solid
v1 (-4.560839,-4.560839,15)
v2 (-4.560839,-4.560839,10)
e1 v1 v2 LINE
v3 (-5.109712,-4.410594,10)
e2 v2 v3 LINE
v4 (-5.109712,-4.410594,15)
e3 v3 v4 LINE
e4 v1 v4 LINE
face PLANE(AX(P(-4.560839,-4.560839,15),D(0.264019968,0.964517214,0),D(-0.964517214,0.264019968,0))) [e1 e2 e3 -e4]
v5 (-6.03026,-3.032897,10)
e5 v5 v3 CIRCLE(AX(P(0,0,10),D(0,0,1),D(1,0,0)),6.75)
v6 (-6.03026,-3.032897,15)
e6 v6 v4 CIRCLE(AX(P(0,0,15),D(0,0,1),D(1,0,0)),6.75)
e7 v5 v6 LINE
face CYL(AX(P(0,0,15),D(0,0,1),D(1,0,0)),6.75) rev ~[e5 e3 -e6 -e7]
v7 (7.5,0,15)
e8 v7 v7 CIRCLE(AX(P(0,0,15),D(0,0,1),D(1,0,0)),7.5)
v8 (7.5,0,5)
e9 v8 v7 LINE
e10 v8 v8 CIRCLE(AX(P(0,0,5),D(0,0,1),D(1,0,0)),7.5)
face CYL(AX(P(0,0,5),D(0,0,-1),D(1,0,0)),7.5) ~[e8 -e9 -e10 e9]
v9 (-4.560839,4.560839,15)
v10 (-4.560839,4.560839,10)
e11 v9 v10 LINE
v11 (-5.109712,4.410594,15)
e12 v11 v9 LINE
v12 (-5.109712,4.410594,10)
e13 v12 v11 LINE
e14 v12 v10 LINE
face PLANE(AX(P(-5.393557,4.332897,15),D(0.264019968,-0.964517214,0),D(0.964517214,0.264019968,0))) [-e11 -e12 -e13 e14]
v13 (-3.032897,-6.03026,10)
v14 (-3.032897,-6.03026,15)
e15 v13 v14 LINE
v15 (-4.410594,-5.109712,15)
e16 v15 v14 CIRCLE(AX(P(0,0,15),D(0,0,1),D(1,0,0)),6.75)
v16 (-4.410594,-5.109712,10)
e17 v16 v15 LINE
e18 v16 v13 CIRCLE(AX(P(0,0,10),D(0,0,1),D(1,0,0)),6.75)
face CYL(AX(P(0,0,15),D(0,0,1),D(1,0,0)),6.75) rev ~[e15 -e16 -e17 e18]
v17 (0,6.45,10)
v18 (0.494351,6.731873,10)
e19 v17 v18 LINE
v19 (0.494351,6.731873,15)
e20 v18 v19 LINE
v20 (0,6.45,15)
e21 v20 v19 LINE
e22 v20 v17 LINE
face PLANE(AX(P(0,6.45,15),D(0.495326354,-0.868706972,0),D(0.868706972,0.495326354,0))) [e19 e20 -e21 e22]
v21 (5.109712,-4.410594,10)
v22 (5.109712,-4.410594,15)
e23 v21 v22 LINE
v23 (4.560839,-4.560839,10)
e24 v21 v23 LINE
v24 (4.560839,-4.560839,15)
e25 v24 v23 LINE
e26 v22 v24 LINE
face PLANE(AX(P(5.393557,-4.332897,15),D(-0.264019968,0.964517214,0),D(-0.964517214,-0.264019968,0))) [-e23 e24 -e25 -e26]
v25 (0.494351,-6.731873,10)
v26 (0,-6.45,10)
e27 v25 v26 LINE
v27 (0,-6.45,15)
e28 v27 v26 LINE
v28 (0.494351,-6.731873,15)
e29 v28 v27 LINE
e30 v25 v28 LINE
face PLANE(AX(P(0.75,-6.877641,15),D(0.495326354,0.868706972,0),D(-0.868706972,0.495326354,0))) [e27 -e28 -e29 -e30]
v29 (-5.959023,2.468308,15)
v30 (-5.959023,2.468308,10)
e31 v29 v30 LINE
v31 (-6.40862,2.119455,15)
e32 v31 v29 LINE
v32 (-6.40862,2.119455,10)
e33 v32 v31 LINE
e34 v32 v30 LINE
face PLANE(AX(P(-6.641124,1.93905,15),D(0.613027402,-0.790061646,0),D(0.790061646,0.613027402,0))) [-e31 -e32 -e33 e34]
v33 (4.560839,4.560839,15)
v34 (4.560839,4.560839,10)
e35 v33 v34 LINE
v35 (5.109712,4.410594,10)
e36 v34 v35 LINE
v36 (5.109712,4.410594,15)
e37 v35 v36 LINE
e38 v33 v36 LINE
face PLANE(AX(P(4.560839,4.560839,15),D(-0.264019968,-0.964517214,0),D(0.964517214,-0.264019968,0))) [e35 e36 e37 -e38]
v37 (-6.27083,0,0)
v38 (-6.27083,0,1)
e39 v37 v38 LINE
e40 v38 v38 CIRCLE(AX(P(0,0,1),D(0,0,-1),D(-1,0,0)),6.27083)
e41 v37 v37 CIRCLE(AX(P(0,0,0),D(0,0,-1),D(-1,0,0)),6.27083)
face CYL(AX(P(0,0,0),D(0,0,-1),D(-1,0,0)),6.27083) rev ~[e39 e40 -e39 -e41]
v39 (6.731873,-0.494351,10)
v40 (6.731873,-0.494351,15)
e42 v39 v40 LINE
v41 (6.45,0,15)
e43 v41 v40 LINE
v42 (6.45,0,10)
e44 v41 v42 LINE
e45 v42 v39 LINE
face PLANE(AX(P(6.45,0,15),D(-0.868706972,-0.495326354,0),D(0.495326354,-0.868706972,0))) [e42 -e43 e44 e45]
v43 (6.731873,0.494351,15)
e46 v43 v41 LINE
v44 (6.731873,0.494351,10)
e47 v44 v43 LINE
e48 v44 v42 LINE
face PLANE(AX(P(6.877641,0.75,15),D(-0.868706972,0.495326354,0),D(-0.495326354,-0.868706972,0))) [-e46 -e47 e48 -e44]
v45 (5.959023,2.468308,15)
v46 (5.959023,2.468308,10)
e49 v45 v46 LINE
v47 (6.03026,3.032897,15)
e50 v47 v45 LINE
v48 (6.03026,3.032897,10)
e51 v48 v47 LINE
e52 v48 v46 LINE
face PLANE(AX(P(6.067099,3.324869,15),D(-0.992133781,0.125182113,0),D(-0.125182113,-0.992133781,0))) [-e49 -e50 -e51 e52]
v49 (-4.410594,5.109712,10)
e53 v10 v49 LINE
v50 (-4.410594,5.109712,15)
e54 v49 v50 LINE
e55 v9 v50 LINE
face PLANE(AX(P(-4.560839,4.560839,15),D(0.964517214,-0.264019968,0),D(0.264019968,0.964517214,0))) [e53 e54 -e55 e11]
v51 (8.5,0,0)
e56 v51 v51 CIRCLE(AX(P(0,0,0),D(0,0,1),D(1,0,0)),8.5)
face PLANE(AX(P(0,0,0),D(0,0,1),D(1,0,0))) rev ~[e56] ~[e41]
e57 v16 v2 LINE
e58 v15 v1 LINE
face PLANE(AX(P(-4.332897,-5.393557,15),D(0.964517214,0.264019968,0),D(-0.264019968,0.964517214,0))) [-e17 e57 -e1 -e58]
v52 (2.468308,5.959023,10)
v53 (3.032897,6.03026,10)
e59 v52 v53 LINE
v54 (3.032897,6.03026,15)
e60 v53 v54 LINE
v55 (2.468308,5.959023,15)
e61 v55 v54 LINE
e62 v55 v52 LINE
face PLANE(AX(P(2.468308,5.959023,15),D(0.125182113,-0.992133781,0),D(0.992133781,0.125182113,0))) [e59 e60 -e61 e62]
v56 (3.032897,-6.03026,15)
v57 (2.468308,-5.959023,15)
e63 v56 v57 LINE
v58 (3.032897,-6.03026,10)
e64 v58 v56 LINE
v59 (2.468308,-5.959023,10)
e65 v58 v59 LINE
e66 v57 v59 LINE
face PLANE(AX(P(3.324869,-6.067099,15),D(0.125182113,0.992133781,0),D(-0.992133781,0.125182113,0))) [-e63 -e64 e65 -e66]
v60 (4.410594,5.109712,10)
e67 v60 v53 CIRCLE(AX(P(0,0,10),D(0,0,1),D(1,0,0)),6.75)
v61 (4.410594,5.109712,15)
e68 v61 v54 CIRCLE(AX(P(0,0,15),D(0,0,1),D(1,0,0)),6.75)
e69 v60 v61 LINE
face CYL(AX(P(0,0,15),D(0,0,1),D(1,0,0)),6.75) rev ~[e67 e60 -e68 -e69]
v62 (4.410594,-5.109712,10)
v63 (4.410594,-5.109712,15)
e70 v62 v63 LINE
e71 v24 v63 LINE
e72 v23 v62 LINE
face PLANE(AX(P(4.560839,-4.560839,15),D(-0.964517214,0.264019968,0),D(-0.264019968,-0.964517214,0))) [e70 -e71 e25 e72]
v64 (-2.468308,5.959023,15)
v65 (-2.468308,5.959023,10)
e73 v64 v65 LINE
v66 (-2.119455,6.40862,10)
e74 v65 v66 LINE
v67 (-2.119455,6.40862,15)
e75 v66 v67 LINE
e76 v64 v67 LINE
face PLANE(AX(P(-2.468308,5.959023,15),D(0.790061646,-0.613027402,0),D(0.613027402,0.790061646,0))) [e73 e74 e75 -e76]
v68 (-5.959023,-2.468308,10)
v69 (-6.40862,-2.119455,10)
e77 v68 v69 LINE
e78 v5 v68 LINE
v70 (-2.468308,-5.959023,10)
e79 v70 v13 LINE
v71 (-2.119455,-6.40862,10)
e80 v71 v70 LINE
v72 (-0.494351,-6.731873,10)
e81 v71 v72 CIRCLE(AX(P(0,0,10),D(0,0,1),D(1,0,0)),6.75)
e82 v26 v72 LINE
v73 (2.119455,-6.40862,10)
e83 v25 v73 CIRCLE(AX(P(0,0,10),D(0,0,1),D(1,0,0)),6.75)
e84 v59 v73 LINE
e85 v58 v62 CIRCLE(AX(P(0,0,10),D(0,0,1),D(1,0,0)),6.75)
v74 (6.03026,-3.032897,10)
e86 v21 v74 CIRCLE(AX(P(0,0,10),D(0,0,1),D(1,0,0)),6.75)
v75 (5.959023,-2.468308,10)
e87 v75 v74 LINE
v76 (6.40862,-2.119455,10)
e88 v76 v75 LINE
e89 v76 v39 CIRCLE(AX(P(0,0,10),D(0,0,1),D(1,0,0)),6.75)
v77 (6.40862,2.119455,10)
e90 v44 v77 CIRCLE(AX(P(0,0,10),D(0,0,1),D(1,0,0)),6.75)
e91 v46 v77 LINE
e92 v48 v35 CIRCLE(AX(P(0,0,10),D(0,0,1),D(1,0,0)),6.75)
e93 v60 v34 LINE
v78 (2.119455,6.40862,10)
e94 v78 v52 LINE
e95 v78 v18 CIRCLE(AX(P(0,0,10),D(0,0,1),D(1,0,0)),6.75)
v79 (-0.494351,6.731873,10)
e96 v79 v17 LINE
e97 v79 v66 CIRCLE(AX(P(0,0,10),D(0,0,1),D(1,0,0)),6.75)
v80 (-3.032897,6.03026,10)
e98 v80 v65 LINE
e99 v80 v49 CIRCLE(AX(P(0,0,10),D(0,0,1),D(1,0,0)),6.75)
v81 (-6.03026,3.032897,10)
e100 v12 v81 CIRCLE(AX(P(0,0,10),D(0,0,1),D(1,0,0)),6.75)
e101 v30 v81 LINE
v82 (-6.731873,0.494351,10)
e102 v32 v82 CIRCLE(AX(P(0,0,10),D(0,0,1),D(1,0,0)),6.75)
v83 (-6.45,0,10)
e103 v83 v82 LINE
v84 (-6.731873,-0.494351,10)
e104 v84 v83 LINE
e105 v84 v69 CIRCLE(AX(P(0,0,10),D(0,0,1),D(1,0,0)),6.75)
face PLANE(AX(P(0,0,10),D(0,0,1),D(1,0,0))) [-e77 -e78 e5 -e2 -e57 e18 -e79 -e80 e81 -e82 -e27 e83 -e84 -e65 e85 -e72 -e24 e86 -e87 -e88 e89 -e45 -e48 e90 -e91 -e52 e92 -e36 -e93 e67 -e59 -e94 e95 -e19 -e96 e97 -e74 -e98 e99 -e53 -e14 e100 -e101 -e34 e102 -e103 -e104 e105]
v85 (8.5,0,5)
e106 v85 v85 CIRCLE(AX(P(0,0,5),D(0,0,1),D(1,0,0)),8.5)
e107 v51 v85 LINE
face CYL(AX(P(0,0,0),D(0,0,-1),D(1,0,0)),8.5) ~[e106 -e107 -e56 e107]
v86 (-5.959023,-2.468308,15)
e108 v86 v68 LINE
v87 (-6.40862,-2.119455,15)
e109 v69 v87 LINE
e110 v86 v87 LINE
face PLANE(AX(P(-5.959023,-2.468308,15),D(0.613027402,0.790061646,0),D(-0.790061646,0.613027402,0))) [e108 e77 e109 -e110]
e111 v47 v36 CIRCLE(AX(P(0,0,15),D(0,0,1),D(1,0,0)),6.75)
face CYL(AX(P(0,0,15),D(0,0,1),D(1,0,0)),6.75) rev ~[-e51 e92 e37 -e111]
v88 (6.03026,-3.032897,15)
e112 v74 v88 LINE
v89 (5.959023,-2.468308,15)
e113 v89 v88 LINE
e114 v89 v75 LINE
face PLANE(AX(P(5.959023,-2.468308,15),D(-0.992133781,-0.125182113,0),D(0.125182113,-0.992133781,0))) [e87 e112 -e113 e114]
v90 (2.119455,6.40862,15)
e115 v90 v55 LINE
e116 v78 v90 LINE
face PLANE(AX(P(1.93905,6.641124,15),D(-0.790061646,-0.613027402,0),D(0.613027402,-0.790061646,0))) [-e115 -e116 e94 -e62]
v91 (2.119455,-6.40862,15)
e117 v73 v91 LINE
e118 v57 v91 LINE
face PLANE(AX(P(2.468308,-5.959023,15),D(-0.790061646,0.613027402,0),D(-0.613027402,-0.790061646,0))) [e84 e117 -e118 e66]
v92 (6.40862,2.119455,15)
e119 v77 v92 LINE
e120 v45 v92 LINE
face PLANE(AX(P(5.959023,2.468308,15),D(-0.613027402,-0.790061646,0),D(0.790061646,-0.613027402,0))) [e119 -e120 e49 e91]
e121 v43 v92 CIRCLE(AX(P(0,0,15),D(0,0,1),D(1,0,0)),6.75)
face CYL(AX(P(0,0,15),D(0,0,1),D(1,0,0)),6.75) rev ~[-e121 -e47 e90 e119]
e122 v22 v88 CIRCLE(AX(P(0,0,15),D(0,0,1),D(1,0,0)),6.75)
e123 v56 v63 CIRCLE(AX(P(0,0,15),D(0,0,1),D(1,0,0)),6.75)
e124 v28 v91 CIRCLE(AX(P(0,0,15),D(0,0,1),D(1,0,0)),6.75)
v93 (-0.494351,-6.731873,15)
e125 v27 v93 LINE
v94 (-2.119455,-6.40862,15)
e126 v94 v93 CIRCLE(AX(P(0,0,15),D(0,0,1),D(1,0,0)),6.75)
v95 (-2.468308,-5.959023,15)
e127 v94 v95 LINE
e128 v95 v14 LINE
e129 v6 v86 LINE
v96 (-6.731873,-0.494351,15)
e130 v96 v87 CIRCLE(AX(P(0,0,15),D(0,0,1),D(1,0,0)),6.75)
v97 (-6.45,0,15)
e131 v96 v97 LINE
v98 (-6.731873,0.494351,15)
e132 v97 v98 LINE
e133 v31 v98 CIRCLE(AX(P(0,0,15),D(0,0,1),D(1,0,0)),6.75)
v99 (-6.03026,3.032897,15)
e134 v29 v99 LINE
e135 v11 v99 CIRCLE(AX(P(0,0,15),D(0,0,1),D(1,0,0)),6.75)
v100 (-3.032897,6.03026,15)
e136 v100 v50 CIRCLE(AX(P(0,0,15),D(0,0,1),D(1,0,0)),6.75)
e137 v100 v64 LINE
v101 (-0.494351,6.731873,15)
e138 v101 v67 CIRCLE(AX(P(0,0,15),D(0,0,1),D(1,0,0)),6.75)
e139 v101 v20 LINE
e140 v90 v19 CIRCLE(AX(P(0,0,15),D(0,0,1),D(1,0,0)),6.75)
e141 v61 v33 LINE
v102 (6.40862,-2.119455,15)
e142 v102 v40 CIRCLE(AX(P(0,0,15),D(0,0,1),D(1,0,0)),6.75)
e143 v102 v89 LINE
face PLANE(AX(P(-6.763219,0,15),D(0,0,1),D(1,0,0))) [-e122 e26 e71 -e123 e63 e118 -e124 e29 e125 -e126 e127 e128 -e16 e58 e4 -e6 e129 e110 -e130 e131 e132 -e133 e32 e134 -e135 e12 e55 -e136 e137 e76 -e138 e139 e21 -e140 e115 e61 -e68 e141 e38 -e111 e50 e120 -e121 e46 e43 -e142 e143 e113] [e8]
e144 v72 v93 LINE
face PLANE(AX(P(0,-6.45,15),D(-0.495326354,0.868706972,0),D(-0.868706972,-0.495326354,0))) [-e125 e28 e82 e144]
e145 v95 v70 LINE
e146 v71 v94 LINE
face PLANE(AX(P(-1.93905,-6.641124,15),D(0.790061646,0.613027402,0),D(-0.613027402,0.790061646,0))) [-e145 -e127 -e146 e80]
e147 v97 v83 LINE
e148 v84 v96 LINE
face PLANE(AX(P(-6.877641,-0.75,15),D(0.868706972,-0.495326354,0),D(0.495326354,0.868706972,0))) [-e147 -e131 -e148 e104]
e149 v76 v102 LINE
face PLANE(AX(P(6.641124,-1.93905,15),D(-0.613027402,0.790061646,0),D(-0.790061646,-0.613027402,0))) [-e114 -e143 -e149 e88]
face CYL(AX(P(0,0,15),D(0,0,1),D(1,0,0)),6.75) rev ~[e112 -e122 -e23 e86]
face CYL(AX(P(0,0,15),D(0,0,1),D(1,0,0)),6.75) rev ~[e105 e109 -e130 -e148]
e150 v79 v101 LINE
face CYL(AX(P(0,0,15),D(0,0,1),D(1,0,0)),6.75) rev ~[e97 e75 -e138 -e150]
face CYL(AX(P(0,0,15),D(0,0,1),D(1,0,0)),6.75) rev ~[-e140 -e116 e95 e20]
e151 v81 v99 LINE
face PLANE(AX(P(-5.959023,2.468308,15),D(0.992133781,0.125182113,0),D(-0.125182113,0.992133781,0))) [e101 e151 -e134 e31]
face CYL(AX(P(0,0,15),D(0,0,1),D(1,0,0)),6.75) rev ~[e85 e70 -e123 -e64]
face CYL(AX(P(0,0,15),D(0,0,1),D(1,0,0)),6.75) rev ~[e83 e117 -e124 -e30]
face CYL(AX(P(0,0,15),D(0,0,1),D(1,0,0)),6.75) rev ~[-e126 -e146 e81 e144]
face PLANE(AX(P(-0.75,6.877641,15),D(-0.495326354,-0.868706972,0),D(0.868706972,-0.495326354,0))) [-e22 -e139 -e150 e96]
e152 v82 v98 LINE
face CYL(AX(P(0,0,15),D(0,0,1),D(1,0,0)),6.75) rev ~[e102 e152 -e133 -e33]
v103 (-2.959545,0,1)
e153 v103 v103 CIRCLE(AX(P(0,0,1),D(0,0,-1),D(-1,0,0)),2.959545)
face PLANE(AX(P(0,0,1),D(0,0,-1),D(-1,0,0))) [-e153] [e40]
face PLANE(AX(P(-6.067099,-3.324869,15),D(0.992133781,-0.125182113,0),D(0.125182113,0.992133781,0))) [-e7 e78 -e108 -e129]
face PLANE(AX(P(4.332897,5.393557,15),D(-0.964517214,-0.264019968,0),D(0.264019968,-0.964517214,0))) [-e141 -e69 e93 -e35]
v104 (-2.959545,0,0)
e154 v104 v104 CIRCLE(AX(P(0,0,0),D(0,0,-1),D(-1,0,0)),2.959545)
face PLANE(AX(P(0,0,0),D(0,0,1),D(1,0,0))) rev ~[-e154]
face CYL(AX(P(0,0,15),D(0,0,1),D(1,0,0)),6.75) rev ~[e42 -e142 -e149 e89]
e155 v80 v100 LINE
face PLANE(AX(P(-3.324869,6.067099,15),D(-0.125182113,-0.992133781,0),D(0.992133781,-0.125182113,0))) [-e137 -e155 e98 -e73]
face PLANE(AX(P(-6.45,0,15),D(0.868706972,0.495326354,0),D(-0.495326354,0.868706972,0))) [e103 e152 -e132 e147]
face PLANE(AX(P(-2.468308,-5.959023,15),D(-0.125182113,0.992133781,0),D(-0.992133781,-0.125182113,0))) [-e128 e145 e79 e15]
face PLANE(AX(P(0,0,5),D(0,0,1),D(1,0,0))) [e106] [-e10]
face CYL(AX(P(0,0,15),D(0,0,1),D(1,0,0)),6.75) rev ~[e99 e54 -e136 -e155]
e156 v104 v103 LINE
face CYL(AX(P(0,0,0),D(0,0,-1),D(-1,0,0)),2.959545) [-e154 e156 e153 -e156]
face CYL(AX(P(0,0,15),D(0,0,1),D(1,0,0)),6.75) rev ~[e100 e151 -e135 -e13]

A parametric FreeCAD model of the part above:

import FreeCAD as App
import Part
import Sketcher
Q = App.Units.Quantity


def add_polygon(sketch, points):
    """Adds a closed chain of lines whose ends are joined by coincident constraints."""
    first, n = sketch.GeometryCount, len(points)
    for a, b in zip(points, points[1:] + points[:1]):
        sketch.addGeometry(Part.LineSegment(App.Vector(*a, 0), App.Vector(*b, 0)), False)
    for i in range(n):
        sketch.addConstraint(Sketcher.Constraint("Coincident", first + i, 2, first + (i + 1) % n, 1))

doc = App.newDocument("Part")
body = doc.addObject("PartDesign::Body", "Body")

# Sketch on XY plane
sketch1 = body.newObject("Sketcher::SketchObject", "Sketch")
sketch1.AttachmentSupport = (doc.getObject("XY_Plane"), [""])
sketch1.MapMode = "FlatFace"
sketch1.addGeometry(Part.Circle(App.Vector(0, 0, 0), App.Vector(0, 0, 1), 8), False)
sketch1.addConstraint([
    Sketcher.Constraint("Coincident", 0, 3, -1, 1),
    Sketcher.Constraint("Diameter", 0, Q("17 mm")),
])
pad1 = body.newObject("PartDesign::Pad", "Pad")
pad1.Profile = sketch1
pad1.Length = 5

# Sketch on XY plane
sketch2 = body.newObject("Sketcher::SketchObject", "Sketch001")
sketch2.AttachmentSupport = (doc.getObject("XY_Plane"), [""])
sketch2.MapMode = "FlatFace"
sketch2.AttachmentOffset = App.Placement(App.Vector(0, 0, 5), App.Rotation())
sketch2.addGeometry(Part.Circle(App.Vector(0, 0, 0), App.Vector(0, 0, 1), 8), False)
sketch2.addConstraint([
    Sketcher.Constraint("Coincident", 0, 3, -1, 1),
    Sketcher.Constraint("Diameter", 0, Q("15 mm")),
])
pad2 = body.newObject("PartDesign::Pad", "Pad001")
pad2.Profile = sketch2
pad2.Length = 10

# Sketch on XY plane
sketch3 = body.newObject("Sketcher::SketchObject", "Sketch002")
sketch3.AttachmentSupport = (doc.getObject("XY_Plane"), [""])
sketch3.MapMode = "FlatFace"
sketch3.AttachmentOffset = App.Placement(App.Vector(0, 0, 15), App.Rotation())
sketch3.addGeometry(Part.Circle(App.Vector(0, 0, 0), App.Vector(0, 0, 1), 7), False)
sketch3.addConstraint([
    Sketcher.Constraint("Coincident", 0, 3, -1, 1),
    Sketcher.Constraint("Diameter", 0, Q("13.5 mm")),
])
pocket1 = body.newObject("PartDesign::Pocket", "Pocket")
pocket1.Profile = sketch3
pocket1.Length = 5

# Sketch on XY plane
sketch4 = body.newObject("Sketcher::SketchObject", "Sketch003")
sketch4.AttachmentSupport = (doc.getObject("XY_Plane"), [""])
sketch4.MapMode = "FlatFace"
sketch4.AttachmentOffset = App.Placement(App.Vector(0, 0, 15), App.Rotation())
add_polygon(sketch4, [(-6.5, 0), (-6.9, 0.8), (-6.9, -0.8)])  # lines 0-2
add_polygon(sketch4, [(-6.1, 3.3), (-6.6, 1.9), (-6, 2.5)])  # lines 3-5
add_polygon(sketch4, [(-4.3, 5.4), (-5.4, 4.3), (-4.6, 4.6)])  # lines 6-8
add_polygon(sketch4, [(-1.9, 6.6), (-3.3, 6.1), (-2.5, 6)])  # lines 9-11
add_polygon(sketch4, [(0.8, 6.9), (-0.8, 6.9), (0, 6.5)])  # lines 12-14
add_polygon(sketch4, [(3.3, 6.1), (1.9, 6.6), (2.5, 6)])  # lines 15-17
add_polygon(sketch4, [(5.4, 4.3), (4.3, 5.4), (4.6, 4.6)])  # lines 18-20
add_polygon(sketch4, [(6.6, 1.9), (6.1, 3.3), (6, 2.5)])  # lines 21-23
add_polygon(sketch4, [(6.9, -0.8), (6.9, 0.8), (6.5, 0)])  # lines 24-26
add_polygon(sketch4, [(6.1, -3.3), (6.6, -1.9), (6, -2.5)])  # lines 27-29
add_polygon(sketch4, [(4.3, -5.4), (5.4, -4.3), (4.6, -4.6)])  # lines 30-32
add_polygon(sketch4, [(1.9, -6.6), (3.3, -6.1), (2.5, -6)])  # lines 33-35
add_polygon(sketch4, [(-0.8, -6.9), (0.8, -6.9), (0, -6.5)])  # lines 36-38
add_polygon(sketch4, [(-3.3, -6.1), (-1.9, -6.6), (-2.5, -6)])  # lines 39-41
add_polygon(sketch4, [(-5.4, -4.3), (-4.3, -5.4), (-4.6, -4.6)])  # lines 42-44
add_polygon(sketch4, [(-6.6, -1.9), (-6.1, -3.3), (-6, -2.5)])  # lines 45-47
sketch4.addConstraint([
    Sketcher.Constraint("Vertical", 1),
    Sketcher.Constraint("Horizontal", 12),
    Sketcher.Constraint("Vertical", 24),
    Sketcher.Constraint("Horizontal", 36),
    Sketcher.Constraint("Symmetric", 1, 2, 24, 2, -1, 1),
    Sketcher.Constraint("Symmetric", 2, 2, 25, 2, -1, 1),
    Sketcher.Constraint("Symmetric", 3, 2, 27, 2, -1, 1),
    Sketcher.Constraint("Symmetric", 4, 2, 28, 2, -1, 1),
    Sketcher.Constraint("Symmetric", 5, 2, 29, 2, -1, 1),
    Sketcher.Constraint("Symmetric", 6, 2, 30, 2, -1, 1),
    Sketcher.Constraint("Symmetric", 7, 2, 31, 2, -1, 1),
    Sketcher.Constraint("Symmetric", 8, 2, 32, 2, -1, 1),
    Sketcher.Constraint("Symmetric", 9, 2, 33, 2, -1, 1),
    Sketcher.Constraint("Symmetric", 10, 2, 34, 2, -1, 1),
    Sketcher.Constraint("Symmetric", 11, 2, 35, 2, -1, 1),
    Sketcher.Constraint("Symmetric", 12, 2, 36, 2, -1, 1),
    Sketcher.Constraint("Symmetric", 13, 2, 37, 2, -1, 1),
    Sketcher.Constraint("Symmetric", 15, 2, 39, 2, -1, 1),
    Sketcher.Constraint("Symmetric", 16, 2, 40, 2, -1, 1),
    Sketcher.Constraint("Symmetric", 17, 2, 41, 2, -1, 1),
    Sketcher.Constraint("Symmetric", 18, 2, 42, 2, -1, 1),
    Sketcher.Constraint("Symmetric", 19, 2, 43, 2, -1, 1),
    Sketcher.Constraint("Symmetric", 20, 2, 44, 2, -1, 1),
    Sketcher.Constraint("Symmetric", 21, 2, 45, 2, -1, 1),
    Sketcher.Constraint("Symmetric", 22, 2, 46, 2, -1, 1),
    Sketcher.Constraint("Symmetric", 23, 2, 47, 2, -1, 1),
    Sketcher.Constraint("Symmetric", 11, 2, 15, 2, -2),
    Sketcher.Constraint("Symmetric", 10, 2, 16, 2, -2),
    Sketcher.Constraint("Symmetric", 9, 2, 17, 2, -2),
    Sketcher.Constraint("Symmetric", 8, 2, 18, 2, -2),
    Sketcher.Constraint("Symmetric", 7, 2, 19, 2, -2),
    Sketcher.Constraint("Symmetric", 6, 2, 20, 2, -2),
    Sketcher.Constraint("Symmetric", 5, 2, 21, 2, -2),
    Sketcher.Constraint("Symmetric", 4, 2, 22, 2, -2),
    Sketcher.Constraint("Symmetric", 3, 2, 23, 2, -2),
    Sketcher.Constraint("PointOnObject", 2, 2, -1),
    Sketcher.Constraint("PointOnObject", 13, 2, -2),
    Sketcher.Constraint("Perpendicular", 2, 13),
    Sketcher.Constraint("Perpendicular", 0, 14),
    Sketcher.Constraint("Perpendicular", 3, 15),
    Sketcher.Constraint("Perpendicular", 4, 16),
    Sketcher.Constraint("Perpendicular", 5, 17),
    Sketcher.Constraint("Perpendicular", 6, 18),
    Sketcher.Constraint("Perpendicular", 7, 19),
    Sketcher.Constraint("Perpendicular", 14, 26),
    Sketcher.Constraint("Perpendicular", 26, 38),
    Sketcher.Constraint("Horizontal", 0, 2, 24, 2),
    Sketcher.Constraint("Equal", 36, 1),
    Sketcher.Constraint("Equal", 2, 4),
    Sketcher.Constraint("Equal", 4, 5),
    Sketcher.Constraint("Equal", 3, 6),
    Sketcher.Constraint("Equal", 5, 7),
    Sketcher.Constraint("Equal", 6, 9),
    Sketcher.Constraint("DistanceX", 12, 2, 12, 1, Q("1.5 mm")),
    Sketcher.Constraint("Angle", 3, Q("-112.5 deg")),
    Sketcher.Constraint("Distance", 3, Q("1.5 mm")),
    Sketcher.Constraint("DistanceX", 2, 2, -1, 1, Q("6.45 mm")),
    Sketcher.Constraint("DistanceY", -1, 1, 13, 2, Q("6.45 mm")),
    Sketcher.Constraint("DistanceX", 5, 2, -1, 1, Q("6.067099 mm")),
    Sketcher.Constraint("DistanceY", -1, 1, 9, 2, Q("6.067099 mm")),
    Sketcher.Constraint("DistanceX", 3, 2, 4, 2, Q("0.682101 mm")),
    Sketcher.Constraint("DistanceX", 11, 2, 15, 2, Q("3.878099 mm")),
    Sketcher.Constraint("DistanceY", 27, 2, 23, 2, Q("3.878099 mm")),
    Sketcher.Constraint("DistanceX", 7, 2, -1, 1, Q("4.560839 mm")),
    Sketcher.Constraint("DistanceY", -1, 1, 7, 2, Q("4.560839 mm")),
])
pad3 = body.newObject("PartDesign::Pad", "Pad002")
pad3.Profile = sketch4
pad3.Length = 5
pad3.Reversed = True

# Sketch on XY plane
sketch5 = body.newObject("Sketcher::SketchObject", "Sketch004")
sketch5.AttachmentSupport = (doc.getObject("XY_Plane"), [""])
sketch5.MapMode = "FlatFace"
sketch5.addGeometry([
    Part.Circle(App.Vector(0, 0, 0), App.Vector(0, 0, 1), 6.3),
    Part.Circle(App.Vector(0, 0, 0), App.Vector(0, 0, 1), 3),
], False)
sketch5.addConstraint([
    Sketcher.Constraint("Coincident", 0, 3, -1, 1),
    Sketcher.Constraint("Coincident", 1, 3, -1, 1),
    Sketcher.Constraint("Diameter", 0, Q("12.54166 mm")),
    Sketcher.Constraint("Diameter", 1, Q("5.91909 mm")),
])
pocket2 = body.newObject("PartDesign::Pocket", "Pocket001")
pocket2.Profile = sketch5
pocket2.Length = 1
pocket2.Reversed = True

doc.recompute()
